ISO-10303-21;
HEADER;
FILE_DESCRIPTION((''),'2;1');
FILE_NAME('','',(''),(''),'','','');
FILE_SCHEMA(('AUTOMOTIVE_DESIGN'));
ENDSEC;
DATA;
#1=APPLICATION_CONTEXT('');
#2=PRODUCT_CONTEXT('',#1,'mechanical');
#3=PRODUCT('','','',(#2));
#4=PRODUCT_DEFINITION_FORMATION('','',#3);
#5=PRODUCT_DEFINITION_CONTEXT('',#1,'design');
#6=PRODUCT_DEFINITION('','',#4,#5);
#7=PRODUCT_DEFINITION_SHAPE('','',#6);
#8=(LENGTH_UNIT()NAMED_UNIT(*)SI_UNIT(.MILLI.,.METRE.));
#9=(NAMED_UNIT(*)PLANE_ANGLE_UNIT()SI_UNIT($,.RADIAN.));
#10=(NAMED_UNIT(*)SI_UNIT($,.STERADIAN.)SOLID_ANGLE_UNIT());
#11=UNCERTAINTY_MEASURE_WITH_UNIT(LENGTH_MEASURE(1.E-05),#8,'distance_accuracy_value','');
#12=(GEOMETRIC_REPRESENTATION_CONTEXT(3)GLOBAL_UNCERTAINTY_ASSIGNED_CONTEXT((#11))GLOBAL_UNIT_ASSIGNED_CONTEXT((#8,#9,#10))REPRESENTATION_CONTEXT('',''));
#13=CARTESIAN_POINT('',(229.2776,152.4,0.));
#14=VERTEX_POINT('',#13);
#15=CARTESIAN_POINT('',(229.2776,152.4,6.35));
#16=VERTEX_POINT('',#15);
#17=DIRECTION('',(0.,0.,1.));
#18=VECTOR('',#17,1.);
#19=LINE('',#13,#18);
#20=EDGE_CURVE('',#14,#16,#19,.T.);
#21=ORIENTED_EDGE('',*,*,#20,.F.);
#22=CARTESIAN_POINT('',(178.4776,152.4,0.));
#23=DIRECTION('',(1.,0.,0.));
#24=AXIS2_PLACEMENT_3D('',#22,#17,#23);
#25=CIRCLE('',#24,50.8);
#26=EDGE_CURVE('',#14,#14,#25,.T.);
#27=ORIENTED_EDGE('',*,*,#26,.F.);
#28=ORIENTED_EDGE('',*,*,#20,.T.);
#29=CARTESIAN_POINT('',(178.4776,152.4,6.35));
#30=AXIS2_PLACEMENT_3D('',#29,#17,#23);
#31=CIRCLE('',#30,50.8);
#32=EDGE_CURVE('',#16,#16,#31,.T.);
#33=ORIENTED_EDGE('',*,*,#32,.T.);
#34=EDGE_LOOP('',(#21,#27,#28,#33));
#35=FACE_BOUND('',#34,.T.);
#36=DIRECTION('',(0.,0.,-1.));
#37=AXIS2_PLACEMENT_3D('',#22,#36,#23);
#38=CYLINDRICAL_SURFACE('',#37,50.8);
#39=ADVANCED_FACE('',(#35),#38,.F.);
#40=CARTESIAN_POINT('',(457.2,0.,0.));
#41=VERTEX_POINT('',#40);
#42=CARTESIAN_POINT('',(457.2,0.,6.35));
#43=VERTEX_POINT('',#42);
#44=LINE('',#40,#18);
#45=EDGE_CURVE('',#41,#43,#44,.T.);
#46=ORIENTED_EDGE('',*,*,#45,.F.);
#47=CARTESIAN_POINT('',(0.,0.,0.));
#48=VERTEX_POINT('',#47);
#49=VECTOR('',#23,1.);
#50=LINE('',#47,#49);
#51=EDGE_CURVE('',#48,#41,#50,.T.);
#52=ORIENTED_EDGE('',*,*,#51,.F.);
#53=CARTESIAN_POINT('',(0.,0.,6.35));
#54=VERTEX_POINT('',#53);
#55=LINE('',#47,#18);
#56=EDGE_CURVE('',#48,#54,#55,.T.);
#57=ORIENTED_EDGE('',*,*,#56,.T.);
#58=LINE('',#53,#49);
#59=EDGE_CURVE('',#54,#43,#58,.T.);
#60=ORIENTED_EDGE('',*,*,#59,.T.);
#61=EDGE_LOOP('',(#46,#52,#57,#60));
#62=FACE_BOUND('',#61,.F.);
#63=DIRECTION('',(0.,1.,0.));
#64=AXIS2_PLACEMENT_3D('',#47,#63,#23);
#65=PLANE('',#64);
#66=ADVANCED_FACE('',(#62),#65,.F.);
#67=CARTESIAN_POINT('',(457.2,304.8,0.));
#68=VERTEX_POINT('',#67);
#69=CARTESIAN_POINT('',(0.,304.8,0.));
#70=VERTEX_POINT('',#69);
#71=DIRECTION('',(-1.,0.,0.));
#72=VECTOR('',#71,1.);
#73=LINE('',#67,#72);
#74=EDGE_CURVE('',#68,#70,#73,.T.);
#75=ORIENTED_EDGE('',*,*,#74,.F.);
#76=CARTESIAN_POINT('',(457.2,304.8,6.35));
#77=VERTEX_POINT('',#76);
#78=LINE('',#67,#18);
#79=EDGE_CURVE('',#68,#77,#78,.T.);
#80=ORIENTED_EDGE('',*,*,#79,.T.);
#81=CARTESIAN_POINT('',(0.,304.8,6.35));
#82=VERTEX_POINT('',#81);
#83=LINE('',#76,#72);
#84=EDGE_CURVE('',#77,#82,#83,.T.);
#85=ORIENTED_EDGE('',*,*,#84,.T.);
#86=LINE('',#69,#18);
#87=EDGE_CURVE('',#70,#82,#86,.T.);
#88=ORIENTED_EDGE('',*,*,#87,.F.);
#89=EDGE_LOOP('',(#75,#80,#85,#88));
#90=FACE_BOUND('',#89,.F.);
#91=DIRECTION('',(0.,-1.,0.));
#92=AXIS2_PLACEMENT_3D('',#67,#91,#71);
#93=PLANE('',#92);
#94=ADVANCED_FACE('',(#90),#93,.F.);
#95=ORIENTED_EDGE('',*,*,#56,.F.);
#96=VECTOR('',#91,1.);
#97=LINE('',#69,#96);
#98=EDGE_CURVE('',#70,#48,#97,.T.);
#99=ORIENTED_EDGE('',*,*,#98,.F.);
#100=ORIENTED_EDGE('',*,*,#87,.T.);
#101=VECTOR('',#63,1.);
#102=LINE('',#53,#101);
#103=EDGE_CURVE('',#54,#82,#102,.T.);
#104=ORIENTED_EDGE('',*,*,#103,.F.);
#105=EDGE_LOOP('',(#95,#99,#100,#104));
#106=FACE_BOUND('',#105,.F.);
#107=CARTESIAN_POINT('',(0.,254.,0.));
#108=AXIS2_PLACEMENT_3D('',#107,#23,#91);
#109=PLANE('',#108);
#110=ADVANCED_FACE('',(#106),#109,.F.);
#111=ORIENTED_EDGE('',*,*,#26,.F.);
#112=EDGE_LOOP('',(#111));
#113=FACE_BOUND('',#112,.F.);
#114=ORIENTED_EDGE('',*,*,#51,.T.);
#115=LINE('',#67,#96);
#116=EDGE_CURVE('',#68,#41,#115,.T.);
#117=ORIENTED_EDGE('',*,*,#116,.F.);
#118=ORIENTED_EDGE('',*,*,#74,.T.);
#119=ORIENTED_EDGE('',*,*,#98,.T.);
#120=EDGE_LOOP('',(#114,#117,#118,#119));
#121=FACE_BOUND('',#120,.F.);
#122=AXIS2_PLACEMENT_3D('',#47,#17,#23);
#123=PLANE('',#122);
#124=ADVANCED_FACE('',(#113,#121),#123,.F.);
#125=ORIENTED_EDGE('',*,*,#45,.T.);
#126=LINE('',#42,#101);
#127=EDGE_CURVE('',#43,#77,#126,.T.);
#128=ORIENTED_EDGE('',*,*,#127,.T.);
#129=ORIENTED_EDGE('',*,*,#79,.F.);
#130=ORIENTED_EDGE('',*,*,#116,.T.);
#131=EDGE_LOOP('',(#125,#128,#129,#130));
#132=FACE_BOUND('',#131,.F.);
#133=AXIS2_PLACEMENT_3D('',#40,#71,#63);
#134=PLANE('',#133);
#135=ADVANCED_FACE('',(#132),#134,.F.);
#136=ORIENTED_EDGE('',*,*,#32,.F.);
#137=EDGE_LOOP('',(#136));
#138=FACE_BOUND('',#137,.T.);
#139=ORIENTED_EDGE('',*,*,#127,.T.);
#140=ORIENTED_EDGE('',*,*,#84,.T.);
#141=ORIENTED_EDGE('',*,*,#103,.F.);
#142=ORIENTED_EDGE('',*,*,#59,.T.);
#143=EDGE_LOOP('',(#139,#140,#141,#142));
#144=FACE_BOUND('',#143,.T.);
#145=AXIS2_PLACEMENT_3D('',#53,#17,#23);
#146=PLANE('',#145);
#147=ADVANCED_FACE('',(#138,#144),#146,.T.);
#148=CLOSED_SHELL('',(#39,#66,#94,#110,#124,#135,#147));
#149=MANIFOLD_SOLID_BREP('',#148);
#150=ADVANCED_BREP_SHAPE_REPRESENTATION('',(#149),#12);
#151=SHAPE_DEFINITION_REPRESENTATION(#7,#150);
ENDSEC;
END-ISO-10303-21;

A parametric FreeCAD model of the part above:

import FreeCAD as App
import Part
import Sketcher

V = App.Vector
Q = App.Units.Quantity

doc = App.newDocument("Part")
body = doc.addObject("PartDesign::Body", "Body")

# Sketch on XY plane
sketch1 = doc.addObject("Sketcher::SketchObject", "Sketch")
body.addObject(sketch1)
sketch1.AttachmentSupport = (doc.XY_Plane, [""])
sketch1.MapMode = "FlatFace"
sketch1.addGeometry([
    Part.LineSegment(V(0, 0, 0), V(457.2, 0, 0)),  # 0
    Part.LineSegment(V(457.2, 0, 0), V(457.2, 304.8, 0)),  # 1
    Part.LineSegment(V(457.2, 304.8, 0), V(0, 304.8, 0)),  # 2
    Part.LineSegment(V(0, 304.8, 0), V(0, 0, 0)),  # 3
    Part.Circle(V(178.4776, 152.4, 0), V(0, 0, 1), 50.8),  # 4
], False)
sketch1.addConstraint([
    Sketcher.Constraint("Coincident", 0, 2, 1, 1),
    Sketcher.Constraint("Coincident", 1, 2, 2, 1),
    Sketcher.Constraint("Coincident", 2, 2, 3, 1),
    Sketcher.Constraint("Coincident", 3, 2, 0, 1),
    Sketcher.Constraint("Horizontal", 0),
    Sketcher.Constraint("Vertical", 1),
    Sketcher.Constraint("Horizontal", 2),
    Sketcher.Constraint("Vertical", 3),
    Sketcher.Constraint("Coincident", 3, 2, -1, 1),
    Sketcher.Constraint("Diameter", 4, Q("4 in")),
    Sketcher.Constraint("DistanceX", 0, 1, 0, 2, Q("18 in")),
    Sketcher.Constraint("DistanceY", 1, 1, 1, 2, Q("12 in")),
    Sketcher.Constraint("DistanceY", -1, 1, 4, 3, Q("6 in")),
    Sketcher.Constraint("DistanceX", -1, 1, 4, 3, 178.4776),
])
pad1 = doc.addObject("PartDesign::Pad", "Pad")
body.addObject(pad1)
pad1.Profile = sketch1
pad1.Length = Q("0.25 in")

doc.recompute()
